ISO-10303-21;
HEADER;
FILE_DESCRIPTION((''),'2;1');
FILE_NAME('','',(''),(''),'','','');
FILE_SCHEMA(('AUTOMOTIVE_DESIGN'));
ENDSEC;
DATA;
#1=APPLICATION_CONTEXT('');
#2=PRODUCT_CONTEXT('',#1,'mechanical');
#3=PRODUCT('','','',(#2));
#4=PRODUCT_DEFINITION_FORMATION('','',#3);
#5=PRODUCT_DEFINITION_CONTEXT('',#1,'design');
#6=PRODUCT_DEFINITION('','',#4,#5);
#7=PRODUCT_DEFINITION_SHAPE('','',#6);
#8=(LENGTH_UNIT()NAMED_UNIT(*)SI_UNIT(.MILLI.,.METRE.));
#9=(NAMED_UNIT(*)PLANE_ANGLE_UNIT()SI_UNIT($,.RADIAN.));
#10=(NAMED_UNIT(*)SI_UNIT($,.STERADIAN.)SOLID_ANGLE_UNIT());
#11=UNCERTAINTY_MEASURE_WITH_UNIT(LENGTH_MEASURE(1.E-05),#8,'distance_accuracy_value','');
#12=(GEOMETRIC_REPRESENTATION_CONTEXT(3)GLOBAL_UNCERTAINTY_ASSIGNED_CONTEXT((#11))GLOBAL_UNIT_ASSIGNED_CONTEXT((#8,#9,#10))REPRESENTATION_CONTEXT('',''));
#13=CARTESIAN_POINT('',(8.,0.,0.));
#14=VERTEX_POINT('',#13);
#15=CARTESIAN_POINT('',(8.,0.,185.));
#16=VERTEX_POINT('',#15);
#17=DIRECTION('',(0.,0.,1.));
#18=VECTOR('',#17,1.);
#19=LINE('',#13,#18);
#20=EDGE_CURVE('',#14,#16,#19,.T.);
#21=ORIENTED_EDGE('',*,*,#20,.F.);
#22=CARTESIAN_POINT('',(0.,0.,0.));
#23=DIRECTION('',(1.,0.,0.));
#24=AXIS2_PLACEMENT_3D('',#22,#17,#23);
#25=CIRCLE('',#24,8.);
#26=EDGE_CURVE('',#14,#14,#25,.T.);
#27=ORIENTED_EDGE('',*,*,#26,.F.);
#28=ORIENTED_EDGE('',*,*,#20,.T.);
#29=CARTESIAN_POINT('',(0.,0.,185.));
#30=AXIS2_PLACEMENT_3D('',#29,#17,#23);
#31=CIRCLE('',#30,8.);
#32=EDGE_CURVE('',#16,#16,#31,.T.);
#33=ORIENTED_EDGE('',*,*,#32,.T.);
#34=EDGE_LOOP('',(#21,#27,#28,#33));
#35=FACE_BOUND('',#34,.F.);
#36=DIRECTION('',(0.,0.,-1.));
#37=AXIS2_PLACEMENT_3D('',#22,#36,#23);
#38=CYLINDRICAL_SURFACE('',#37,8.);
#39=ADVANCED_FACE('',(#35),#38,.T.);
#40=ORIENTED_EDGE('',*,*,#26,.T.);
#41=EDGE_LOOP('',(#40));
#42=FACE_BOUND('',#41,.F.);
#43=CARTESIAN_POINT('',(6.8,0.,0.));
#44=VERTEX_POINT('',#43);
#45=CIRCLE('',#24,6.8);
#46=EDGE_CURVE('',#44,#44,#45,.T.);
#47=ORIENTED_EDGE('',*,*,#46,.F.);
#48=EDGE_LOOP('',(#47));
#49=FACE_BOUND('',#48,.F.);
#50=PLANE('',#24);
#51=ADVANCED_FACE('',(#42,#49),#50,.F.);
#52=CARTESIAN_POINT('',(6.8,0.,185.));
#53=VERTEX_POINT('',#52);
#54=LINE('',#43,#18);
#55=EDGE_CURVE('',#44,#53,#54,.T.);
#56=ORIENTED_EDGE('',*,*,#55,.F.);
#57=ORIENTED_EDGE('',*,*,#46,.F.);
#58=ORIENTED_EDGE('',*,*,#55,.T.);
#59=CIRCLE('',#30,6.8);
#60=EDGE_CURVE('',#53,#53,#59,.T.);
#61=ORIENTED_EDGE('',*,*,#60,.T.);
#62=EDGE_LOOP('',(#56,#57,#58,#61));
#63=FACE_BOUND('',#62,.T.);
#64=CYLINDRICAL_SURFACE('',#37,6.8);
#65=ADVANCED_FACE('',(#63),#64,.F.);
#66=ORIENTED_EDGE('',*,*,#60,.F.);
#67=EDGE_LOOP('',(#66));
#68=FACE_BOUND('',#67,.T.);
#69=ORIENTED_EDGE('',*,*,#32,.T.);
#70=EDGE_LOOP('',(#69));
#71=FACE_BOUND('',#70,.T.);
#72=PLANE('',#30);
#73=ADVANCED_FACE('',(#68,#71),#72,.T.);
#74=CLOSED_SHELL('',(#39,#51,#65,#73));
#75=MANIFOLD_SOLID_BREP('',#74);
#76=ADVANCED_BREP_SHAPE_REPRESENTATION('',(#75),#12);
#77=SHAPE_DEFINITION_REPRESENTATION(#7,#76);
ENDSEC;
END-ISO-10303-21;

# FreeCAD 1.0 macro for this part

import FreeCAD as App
import Part
import Sketcher
from FreeCAD import Vector
Q = App.Units.Quantity

doc = App.newDocument("Part")
body = doc.addObject("PartDesign::Body", "Body")

# Sketch on XY plane
sketch1 = doc.addObject("Sketcher::SketchObject", "Sketch")
body.addObject(sketch1)
sketch1.AttachmentSupport = (doc.XY_Plane, [""])
sketch1.MapMode = "FlatFace"
sketch1.addGeometry(Part.Circle(Vector(0, 0, 0), Vector(0, 0, 1), 8), False)
sketch1.addGeometry(Part.Circle(Vector(0, 0, 0), Vector(0, 0, 1), 7), False)
sketch1.addConstraint(Sketcher.Constraint("Coincident", 0, 3, -1, 1))
sketch1.addConstraint(Sketcher.Constraint("Coincident", 1, 3, -1, 1))
sketch1.addConstraint(Sketcher.Constraint("Diameter", 0, Q("16 mm")))
sketch1.addConstraint(Sketcher.Constraint("Diameter", 1, Q("13.6 mm")))
pad1 = doc.addObject("PartDesign::Pad", "Pad")
body.addObject(pad1)
pad1.Profile = sketch1
pad1.Length = 185

doc.recompute()
